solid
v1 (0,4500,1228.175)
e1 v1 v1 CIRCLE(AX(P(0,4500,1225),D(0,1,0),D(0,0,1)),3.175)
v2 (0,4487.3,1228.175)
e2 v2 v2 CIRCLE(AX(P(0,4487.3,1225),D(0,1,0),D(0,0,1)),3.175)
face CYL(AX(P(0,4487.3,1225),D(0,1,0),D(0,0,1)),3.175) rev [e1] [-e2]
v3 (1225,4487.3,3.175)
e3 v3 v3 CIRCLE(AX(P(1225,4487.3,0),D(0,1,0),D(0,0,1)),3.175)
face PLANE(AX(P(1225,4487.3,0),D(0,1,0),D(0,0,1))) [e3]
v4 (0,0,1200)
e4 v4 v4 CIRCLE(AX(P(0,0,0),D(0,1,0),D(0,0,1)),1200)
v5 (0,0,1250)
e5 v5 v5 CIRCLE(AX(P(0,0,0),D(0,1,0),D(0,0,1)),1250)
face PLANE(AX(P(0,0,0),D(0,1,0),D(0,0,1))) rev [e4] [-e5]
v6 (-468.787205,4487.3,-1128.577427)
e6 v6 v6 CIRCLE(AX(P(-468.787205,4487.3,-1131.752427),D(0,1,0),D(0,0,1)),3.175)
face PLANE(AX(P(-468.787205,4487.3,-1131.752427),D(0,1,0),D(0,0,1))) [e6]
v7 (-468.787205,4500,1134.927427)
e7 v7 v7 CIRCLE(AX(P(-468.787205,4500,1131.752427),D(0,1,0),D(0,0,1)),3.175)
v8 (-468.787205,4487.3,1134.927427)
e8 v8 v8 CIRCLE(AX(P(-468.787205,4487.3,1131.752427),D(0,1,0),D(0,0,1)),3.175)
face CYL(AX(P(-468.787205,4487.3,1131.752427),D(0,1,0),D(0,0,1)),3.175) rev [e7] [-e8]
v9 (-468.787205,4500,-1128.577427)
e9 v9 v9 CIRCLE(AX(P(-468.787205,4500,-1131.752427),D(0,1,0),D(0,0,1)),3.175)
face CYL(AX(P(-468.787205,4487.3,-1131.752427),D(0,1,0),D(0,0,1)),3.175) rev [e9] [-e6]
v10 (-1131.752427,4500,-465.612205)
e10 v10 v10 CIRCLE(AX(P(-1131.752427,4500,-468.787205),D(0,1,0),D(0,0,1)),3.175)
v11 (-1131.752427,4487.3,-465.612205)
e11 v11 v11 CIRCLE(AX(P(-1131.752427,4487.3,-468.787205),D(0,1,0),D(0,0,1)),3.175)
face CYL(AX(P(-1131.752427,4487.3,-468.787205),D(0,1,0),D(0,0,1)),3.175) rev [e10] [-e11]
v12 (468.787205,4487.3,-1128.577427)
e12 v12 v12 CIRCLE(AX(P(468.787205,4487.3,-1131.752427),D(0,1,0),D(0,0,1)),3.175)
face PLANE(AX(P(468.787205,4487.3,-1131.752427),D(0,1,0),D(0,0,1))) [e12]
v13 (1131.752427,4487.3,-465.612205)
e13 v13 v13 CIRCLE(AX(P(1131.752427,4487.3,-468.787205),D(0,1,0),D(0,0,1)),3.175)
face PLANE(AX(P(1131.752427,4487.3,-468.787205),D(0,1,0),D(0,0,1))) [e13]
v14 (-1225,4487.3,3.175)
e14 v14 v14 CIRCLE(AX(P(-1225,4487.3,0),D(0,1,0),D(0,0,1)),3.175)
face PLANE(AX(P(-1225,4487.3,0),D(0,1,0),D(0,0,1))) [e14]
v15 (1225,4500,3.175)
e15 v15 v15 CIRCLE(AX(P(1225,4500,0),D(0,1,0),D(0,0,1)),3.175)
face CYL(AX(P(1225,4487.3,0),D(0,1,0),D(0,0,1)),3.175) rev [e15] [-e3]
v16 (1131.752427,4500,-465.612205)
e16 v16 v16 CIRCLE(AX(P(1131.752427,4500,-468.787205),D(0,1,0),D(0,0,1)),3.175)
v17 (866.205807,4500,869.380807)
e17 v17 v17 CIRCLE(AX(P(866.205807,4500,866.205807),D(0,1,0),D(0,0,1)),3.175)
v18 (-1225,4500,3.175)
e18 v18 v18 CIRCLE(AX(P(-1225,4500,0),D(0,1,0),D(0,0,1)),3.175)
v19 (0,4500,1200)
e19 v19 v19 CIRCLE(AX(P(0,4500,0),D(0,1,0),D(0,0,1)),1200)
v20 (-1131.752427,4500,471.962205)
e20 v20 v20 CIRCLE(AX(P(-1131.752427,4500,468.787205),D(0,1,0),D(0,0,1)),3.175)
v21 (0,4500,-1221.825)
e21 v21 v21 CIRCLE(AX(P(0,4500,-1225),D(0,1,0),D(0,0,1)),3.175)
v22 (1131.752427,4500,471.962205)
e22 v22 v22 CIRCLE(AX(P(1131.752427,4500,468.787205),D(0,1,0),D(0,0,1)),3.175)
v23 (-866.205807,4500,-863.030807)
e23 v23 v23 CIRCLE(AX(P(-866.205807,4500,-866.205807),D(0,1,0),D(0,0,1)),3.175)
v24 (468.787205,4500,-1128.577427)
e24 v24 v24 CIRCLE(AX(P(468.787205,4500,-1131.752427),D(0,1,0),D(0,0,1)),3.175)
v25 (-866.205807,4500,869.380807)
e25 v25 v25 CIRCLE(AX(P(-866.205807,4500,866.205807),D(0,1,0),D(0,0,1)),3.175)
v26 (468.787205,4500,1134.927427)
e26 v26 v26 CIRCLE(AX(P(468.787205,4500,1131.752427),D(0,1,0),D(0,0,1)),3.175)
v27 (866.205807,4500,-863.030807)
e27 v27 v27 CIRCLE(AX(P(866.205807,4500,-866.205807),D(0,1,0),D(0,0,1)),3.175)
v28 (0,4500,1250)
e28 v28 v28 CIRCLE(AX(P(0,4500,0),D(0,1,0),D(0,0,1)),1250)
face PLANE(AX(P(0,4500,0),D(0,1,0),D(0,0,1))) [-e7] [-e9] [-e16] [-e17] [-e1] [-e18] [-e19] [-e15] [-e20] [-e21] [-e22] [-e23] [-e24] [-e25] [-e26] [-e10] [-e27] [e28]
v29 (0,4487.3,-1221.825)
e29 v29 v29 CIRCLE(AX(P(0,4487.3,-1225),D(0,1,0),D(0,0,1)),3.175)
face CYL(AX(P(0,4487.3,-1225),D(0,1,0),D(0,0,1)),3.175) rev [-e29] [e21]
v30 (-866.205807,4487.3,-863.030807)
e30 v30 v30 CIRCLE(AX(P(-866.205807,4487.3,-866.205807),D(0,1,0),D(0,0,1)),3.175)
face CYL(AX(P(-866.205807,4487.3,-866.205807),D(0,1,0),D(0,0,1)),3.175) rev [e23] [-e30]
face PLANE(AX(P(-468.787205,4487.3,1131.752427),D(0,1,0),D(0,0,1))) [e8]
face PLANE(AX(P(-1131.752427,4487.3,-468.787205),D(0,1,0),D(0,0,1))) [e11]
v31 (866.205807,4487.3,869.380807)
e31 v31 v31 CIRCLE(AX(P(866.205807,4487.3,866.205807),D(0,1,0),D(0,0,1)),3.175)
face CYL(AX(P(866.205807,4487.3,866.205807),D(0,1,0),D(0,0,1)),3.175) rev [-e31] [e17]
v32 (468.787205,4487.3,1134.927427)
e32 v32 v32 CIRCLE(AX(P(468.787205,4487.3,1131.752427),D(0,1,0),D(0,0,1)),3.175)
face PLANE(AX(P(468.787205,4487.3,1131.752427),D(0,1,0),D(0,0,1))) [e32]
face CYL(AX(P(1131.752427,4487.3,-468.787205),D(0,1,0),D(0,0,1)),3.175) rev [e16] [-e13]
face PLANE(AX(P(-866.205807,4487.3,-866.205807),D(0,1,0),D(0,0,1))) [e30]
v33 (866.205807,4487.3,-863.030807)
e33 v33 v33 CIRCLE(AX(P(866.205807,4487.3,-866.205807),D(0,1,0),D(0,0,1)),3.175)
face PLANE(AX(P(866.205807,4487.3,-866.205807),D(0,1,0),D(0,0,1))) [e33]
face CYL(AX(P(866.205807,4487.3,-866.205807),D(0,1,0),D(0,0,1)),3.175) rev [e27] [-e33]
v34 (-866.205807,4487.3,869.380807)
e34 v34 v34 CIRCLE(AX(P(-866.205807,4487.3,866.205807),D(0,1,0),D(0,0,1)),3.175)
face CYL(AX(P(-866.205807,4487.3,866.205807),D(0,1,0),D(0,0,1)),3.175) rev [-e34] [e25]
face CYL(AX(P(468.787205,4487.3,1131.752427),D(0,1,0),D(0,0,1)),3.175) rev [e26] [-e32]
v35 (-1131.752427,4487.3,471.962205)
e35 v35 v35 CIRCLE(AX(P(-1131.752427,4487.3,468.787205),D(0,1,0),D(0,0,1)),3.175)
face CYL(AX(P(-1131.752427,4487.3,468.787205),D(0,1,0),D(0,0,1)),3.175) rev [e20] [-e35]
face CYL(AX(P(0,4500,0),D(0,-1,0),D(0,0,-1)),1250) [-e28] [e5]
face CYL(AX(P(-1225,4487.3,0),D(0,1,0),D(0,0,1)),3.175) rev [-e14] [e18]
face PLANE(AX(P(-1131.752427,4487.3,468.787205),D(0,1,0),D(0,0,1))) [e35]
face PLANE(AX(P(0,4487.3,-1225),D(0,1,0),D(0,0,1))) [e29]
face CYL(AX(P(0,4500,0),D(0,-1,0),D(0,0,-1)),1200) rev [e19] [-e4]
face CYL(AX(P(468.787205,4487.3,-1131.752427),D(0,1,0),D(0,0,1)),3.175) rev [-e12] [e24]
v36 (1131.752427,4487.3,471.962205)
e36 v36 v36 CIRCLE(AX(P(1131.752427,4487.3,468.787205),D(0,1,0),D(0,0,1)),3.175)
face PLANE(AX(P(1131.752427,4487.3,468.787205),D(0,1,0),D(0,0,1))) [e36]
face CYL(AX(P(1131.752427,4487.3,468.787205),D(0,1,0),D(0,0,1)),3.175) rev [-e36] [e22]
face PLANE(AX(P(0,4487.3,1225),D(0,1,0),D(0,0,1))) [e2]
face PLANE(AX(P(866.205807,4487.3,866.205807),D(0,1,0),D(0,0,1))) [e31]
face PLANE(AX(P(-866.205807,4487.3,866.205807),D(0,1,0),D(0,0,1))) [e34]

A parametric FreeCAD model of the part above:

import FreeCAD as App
import Part
import Sketcher

V = App.Vector
Q = App.Units.Quantity

doc = App.newDocument("Part")
body = doc.addObject("PartDesign::Body", "Body")

# Sketch on XZ plane
sketch1 = body.newObject("Sketcher::SketchObject", "Sketch")
sketch1.AttachmentSupport = (doc.getObject("XZ_Plane"), [""])
sketch1.MapMode = "FlatFace"
sketch1.addGeometry([
    Part.Circle(V(0, 0, 0), V(0, 0, 1), 1250),
    Part.Circle(V(0, 0, 0), V(0, 0, 1), 1200),
], False)
sketch1.addConstraint([
    Sketcher.Constraint("Coincident", 0, 3, -1, 1),
    Sketcher.Constraint("Coincident", 1, 3, -1, 1),
    Sketcher.Constraint("Diameter", 0, Q("2500 mm")),
    Sketcher.Constraint("Diameter", 1, Q("2400 mm")),
])
pad1 = body.newObject("PartDesign::Pad", "Pad")
pad1.Profile = sketch1
pad1.Length = 4500
pad1.Reversed = True

# Sketch on XZ plane
sketch2 = body.newObject("Sketcher::SketchObject", "Sketch001")
sketch2.AttachmentSupport = (doc.getObject("XZ_Plane"), [""])
sketch2.MapMode = "FlatFace"
sketch2.AttachmentOffset = App.Placement(V(0, 0, -4500), App.Rotation())
sketch2.addGeometry([
    Part.Circle(V(-1225, 0, 0), V(0, 0, 1), 3.2),  # 0
    Part.Circle(V(-1131.8, -468.8, 0), V(0, 0, 1), 3.2),  # 1
    Part.Circle(V(-866.2, -866.2, 0), V(0, 0, 1), 3.2),  # 2
    Part.Circle(V(-468.8, -1131.8, 0), V(0, 0, 1), 3.2),  # 3
    Part.Circle(V(0, -1225, 0), V(0, 0, 1), 3.2),  # 4
    Part.Circle(V(468.8, -1131.8, 0), V(0, 0, 1), 3.2),  # 5
    Part.Circle(V(866.2, -866.2, 0), V(0, 0, 1), 3.2),  # 6
    Part.Circle(V(1131.8, -468.8, 0), V(0, 0, 1), 3.2),  # 7
    Part.Circle(V(1225, 0, 0), V(0, 0, 1), 3.2),  # 8
    Part.Circle(V(1131.8, 468.8, 0), V(0, 0, 1), 3.2),  # 9
    Part.Circle(V(866.2, 866.2, 0), V(0, 0, 1), 3.2),  # 10
    Part.Circle(V(468.8, 1131.8, 0), V(0, 0, 1), 3.2),  # 11
    Part.Circle(V(0, 1225, 0), V(0, 0, 1), 3.2),  # 12
    Part.Circle(V(-468.8, 1131.8, 0), V(0, 0, 1), 3.2),  # 13
    Part.Circle(V(-866.2, 866.2, 0), V(0, 0, 1), 3.2),  # 14
    Part.Circle(V(-1131.8, 468.8, 0), V(0, 0, 1), 3.2),  # 15
], False)
sketch2.addConstraint([
    Sketcher.Constraint("Equal", 0, 1),
    Sketcher.Constraint("Equal", 1, 2),
    Sketcher.Constraint("Equal", 2, 3),
    Sketcher.Constraint("Equal", 3, 4),
    Sketcher.Constraint("Equal", 4, 5),
    Sketcher.Constraint("Equal", 5, 6),
    Sketcher.Constraint("Equal", 6, 7),
    Sketcher.Constraint("Equal", 7, 8),
    Sketcher.Constraint("Equal", 8, 9),
    Sketcher.Constraint("Equal", 9, 10),
    Sketcher.Constraint("Equal", 10, 11),
    Sketcher.Constraint("Equal", 11, 12),
    Sketcher.Constraint("Equal", 12, 13),
    Sketcher.Constraint("Equal", 13, 14),
    Sketcher.Constraint("Equal", 14, 15),
    Sketcher.Constraint("Symmetric", 0, 3, 8, 3, -1, 1),
    Sketcher.Constraint("Symmetric", 1, 3, 9, 3, -1, 1),
    Sketcher.Constraint("Symmetric", 2, 3, 10, 3, -1, 1),
    Sketcher.Constraint("Symmetric", 3, 3, 11, 3, -1, 1),
    Sketcher.Constraint("Symmetric", 4, 3, 12, 3, -1, 1),
    Sketcher.Constraint("Symmetric", 5, 3, 13, 3, -1, 1),
    Sketcher.Constraint("Symmetric", 6, 3, 14, 3, -1, 1),
    Sketcher.Constraint("Symmetric", 7, 3, 15, 3, -1, 1),
    Sketcher.Constraint("Symmetric", 3, 3, 5, 3, -2),
    Sketcher.Constraint("Symmetric", 2, 3, 6, 3, -2),
    Sketcher.Constraint("Symmetric", 1, 3, 7, 3, -2),
    Sketcher.Constraint("PointOnObject", 0, 3, -1),
    Sketcher.Constraint("PointOnObject", 4, 3, -2),
    Sketcher.Constraint("Diameter", 0, Q("6.35 mm")),
    Sketcher.Constraint("DistanceX", 0, 3, -1, 1, Q("1225 mm")),
    Sketcher.Constraint("DistanceY", 4, 3, -1, 1, Q("1225 mm")),
    Sketcher.Constraint("DistanceX", 1, 3, 2, 3, Q("265.54662 mm")),
    Sketcher.Constraint("DistanceY", 3, 3, 2, 3, Q("265.54662 mm")),
    Sketcher.Constraint("DistanceX", 3, 3, 5, 3, Q("937.574409 mm")),
    Sketcher.Constraint("DistanceX", 2, 3, 5, 3, Q("1334.993012 mm")),
    Sketcher.Constraint("DistanceY", 7, 3, 9, 3, Q("937.574409 mm")),
    Sketcher.Constraint("DistanceY", 6, 3, 9, 3, Q("1334.993012 mm")),
])
pocket1 = body.newObject("PartDesign::Pocket", "Pocket")
pocket1.Profile = sketch2
pocket1.Length = 12.7
pocket1.Reversed = True

doc.recompute()
